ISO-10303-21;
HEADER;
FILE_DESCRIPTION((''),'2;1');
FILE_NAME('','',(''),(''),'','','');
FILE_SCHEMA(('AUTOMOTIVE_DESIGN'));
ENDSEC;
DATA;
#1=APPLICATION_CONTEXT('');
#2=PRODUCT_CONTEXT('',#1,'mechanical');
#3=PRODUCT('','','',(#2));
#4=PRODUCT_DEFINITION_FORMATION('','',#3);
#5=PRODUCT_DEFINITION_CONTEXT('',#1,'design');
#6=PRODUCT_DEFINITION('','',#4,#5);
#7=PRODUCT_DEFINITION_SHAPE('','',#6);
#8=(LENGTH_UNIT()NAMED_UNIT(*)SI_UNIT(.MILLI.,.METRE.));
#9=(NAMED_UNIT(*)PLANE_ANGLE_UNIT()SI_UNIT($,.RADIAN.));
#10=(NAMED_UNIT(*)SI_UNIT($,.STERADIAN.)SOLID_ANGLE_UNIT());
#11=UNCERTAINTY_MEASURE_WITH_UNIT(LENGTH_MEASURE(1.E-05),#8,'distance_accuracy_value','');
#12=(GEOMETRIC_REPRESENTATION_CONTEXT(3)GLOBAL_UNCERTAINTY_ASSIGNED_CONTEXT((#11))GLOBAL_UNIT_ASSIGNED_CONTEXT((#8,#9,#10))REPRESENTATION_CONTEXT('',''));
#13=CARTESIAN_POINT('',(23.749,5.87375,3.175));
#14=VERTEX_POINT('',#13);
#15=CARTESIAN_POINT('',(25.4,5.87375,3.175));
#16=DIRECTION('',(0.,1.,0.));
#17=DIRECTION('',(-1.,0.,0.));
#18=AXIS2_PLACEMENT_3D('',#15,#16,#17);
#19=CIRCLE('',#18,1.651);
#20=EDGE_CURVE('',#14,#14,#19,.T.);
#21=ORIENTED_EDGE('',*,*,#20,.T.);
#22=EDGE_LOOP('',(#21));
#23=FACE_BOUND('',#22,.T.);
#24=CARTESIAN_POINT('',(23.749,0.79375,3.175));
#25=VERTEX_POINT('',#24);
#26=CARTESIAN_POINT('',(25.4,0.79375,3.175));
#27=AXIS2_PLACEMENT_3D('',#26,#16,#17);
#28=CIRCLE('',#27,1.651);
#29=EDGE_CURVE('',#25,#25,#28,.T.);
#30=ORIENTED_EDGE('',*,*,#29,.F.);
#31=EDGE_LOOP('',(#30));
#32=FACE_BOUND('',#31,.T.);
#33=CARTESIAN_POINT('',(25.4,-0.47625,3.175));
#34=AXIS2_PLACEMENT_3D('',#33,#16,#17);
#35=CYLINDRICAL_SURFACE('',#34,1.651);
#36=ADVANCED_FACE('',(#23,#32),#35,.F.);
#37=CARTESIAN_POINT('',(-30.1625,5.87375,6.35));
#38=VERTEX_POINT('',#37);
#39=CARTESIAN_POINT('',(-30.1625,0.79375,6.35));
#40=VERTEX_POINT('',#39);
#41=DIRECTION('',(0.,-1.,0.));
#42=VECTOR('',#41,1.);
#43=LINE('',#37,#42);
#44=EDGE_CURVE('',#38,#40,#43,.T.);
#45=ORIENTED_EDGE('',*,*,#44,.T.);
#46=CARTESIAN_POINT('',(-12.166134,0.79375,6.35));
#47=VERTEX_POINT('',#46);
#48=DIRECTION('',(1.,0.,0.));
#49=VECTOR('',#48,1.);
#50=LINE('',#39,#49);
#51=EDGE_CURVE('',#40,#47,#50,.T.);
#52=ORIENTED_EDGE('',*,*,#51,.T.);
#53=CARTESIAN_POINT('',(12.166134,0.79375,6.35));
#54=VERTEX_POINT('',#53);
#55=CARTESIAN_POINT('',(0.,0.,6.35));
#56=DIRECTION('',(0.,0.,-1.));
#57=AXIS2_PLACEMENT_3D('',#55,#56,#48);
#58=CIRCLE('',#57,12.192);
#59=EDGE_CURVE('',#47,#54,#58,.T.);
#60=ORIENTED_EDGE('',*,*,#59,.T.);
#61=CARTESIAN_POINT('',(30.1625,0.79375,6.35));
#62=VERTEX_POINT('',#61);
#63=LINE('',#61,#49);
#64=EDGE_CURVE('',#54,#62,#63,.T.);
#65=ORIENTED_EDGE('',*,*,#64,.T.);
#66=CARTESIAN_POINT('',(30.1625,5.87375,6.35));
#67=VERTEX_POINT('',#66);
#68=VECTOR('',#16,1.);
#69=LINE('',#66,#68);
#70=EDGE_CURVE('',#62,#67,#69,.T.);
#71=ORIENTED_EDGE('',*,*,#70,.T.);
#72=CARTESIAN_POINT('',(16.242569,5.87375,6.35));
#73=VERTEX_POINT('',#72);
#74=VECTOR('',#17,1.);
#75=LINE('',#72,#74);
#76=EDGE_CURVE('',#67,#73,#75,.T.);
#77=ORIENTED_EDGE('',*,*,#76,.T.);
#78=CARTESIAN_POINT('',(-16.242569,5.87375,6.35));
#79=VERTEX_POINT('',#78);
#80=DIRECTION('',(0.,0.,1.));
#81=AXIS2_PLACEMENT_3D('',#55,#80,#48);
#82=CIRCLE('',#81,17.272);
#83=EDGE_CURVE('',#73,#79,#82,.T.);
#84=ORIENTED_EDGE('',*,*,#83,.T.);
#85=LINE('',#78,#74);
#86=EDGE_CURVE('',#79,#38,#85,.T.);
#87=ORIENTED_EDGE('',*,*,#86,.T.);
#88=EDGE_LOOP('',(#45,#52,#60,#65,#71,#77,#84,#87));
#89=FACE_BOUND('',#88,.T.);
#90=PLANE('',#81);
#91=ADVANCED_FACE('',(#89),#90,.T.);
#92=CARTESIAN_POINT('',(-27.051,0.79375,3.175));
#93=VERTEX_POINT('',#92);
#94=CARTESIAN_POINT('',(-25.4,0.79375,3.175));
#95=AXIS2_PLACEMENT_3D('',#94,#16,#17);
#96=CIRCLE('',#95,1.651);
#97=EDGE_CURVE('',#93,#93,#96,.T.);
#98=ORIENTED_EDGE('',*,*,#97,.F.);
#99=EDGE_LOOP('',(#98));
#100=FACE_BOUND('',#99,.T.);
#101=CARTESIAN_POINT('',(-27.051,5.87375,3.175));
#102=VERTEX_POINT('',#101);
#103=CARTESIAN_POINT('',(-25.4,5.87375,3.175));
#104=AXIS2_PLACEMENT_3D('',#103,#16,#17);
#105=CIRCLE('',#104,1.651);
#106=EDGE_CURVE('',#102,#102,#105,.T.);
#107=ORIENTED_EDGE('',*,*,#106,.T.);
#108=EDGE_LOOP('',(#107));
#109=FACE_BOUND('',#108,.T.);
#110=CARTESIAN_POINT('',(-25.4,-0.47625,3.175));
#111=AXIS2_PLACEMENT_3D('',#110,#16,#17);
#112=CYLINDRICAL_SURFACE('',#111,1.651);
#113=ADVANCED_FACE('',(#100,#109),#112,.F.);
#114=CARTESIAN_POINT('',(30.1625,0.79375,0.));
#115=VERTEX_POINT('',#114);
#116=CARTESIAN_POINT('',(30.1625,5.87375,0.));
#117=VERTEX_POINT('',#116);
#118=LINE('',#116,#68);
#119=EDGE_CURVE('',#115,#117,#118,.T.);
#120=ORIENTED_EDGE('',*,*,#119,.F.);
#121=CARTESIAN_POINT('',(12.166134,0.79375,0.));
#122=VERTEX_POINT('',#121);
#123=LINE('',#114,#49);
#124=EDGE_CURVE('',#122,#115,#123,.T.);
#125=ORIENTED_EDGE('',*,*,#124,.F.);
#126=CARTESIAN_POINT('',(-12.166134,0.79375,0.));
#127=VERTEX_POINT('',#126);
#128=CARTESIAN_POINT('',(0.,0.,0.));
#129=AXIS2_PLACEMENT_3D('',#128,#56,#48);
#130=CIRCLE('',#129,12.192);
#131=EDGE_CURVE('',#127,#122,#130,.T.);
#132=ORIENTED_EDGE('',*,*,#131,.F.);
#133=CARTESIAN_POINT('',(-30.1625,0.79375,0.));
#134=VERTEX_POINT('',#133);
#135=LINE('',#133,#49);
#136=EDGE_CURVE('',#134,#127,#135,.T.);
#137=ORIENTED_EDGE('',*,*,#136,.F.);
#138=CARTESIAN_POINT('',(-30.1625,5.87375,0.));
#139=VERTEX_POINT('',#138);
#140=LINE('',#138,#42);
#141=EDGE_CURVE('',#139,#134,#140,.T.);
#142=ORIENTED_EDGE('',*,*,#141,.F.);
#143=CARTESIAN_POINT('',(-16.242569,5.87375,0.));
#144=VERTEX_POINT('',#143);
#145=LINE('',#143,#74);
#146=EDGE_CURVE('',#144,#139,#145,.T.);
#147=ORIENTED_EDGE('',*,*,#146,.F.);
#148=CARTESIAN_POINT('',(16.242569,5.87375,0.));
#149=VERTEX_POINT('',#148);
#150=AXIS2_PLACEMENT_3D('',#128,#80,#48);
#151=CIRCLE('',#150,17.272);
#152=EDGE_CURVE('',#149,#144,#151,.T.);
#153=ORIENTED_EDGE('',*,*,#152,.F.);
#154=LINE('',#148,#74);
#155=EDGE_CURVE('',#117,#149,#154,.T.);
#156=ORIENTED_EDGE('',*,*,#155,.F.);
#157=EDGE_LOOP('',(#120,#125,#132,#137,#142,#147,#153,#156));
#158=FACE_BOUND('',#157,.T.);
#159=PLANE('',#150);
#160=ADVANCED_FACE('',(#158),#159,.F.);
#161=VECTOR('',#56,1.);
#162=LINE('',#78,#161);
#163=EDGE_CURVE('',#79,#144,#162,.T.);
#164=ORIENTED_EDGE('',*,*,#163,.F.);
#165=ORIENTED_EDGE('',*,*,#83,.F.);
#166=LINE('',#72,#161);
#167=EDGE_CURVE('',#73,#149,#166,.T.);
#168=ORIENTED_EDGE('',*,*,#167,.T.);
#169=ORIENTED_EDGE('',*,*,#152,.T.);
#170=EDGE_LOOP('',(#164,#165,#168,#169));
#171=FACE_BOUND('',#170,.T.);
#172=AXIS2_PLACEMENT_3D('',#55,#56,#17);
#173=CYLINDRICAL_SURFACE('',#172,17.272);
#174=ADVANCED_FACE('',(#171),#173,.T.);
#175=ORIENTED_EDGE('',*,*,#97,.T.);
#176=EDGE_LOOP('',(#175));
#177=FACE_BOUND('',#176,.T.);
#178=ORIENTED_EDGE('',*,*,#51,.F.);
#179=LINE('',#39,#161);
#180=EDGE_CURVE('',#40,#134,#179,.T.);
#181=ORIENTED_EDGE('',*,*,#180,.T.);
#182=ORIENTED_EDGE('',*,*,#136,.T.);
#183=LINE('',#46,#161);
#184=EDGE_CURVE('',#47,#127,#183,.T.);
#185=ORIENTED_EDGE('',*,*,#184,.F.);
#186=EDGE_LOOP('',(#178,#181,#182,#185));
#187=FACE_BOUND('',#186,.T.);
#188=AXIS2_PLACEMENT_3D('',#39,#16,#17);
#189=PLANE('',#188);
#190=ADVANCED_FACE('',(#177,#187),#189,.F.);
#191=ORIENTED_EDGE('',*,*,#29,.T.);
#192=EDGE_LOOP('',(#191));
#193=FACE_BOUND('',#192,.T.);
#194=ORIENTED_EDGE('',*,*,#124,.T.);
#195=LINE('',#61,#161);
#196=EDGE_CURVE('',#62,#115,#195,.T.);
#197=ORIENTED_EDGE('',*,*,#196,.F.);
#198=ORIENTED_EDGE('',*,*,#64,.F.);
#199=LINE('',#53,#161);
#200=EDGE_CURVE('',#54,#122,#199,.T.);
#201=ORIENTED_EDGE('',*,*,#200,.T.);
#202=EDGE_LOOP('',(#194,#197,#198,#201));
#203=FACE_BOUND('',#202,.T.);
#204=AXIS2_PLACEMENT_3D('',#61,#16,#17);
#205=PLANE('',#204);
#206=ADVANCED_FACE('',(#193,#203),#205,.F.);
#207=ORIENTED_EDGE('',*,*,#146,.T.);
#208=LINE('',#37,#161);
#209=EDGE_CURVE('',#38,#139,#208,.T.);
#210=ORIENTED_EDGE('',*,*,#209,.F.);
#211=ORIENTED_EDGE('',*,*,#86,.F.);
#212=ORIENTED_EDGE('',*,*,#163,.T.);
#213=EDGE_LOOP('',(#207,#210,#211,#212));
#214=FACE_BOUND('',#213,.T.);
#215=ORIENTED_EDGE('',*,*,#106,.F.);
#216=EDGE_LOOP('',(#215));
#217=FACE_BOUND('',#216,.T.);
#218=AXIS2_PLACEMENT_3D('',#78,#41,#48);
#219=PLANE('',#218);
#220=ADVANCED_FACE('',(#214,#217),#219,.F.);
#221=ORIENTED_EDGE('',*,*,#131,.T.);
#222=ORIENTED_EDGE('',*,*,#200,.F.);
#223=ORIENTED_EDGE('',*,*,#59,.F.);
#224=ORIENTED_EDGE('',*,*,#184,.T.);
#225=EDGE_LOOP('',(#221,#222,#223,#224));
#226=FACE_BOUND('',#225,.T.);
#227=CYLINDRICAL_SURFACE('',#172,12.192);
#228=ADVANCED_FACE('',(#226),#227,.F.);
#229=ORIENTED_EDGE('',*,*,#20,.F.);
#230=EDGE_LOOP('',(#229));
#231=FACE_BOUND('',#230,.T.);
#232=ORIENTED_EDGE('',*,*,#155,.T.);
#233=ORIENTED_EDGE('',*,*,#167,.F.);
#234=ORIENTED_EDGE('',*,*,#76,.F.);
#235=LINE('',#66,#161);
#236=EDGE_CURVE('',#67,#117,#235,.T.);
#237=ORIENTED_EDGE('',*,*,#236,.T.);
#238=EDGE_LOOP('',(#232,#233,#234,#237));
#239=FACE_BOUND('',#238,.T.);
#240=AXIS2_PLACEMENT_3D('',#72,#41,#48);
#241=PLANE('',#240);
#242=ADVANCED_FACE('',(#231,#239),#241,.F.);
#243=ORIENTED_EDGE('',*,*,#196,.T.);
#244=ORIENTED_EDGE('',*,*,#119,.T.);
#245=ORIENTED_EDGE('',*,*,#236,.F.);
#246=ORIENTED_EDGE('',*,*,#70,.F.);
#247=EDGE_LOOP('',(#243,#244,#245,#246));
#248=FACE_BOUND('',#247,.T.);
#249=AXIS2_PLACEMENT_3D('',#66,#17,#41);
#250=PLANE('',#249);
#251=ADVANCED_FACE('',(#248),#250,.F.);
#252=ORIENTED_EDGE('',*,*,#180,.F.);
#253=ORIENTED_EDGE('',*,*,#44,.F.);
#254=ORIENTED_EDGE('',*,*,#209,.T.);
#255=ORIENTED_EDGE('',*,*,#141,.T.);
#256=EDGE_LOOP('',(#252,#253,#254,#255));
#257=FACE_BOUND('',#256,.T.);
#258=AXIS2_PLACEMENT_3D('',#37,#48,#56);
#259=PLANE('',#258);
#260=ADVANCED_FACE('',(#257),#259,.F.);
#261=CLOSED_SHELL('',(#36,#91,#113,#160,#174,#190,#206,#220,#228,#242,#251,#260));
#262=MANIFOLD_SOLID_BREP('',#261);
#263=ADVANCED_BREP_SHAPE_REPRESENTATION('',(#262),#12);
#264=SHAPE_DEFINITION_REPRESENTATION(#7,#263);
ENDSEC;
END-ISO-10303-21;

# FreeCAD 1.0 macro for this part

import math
import FreeCAD as App
import Part
import Sketcher
from FreeCAD import Vector
Q = App.Units.Quantity

doc = App.newDocument("Part")
body = doc.addObject("PartDesign::Body", "Body")

sketch1 = body.newObject("Sketcher::SketchObject", "Sketch")
sketch1.AttachmentSupport = (doc.getObject("XY_Plane"), [""])
sketch1.MapMode = "FlatFace"
sketch1.addGeometry(Part.LineSegment(Vector(-16.242569, 5.87375, 0), Vector(-30.1625, 5.87375, 0)), False)
sketch1.addGeometry(Part.LineSegment(Vector(-30.1625, 5.87375, 0), Vector(-30.1625, 0.79375, 0)), False)
sketch1.addGeometry(Part.LineSegment(Vector(-30.1625, 0.79375, 0), Vector(-12.166134, 0.79375, 0)), False)
sketch1.addGeometry(Part.ArcOfCircle(Part.Circle(Vector(0, 0, 0), Vector(0, 0, 1), 12.192), math.radians(3.732834), math.radians(176.267166)), False)
sketch1.addGeometry(Part.LineSegment(Vector(12.166134, 0.79375, 0), Vector(30.1625, 0.79375, 0)), False)
sketch1.addGeometry(Part.LineSegment(Vector(30.1625, 0.79375, 0), Vector(30.1625, 5.87375, 0)), False)
sketch1.addGeometry(Part.LineSegment(Vector(30.1625, 5.87375, 0), Vector(16.242569, 5.87375, 0)), False)
sketch1.addGeometry(Part.ArcOfCircle(Part.Circle(Vector(0, 0, 0), Vector(0, 0, 1), 17.272), math.radians(19.881354), math.radians(160.118646)), False)
sketch1.addConstraint(Sketcher.Constraint("Coincident", 0, 2, 1, 1))
sketch1.addConstraint(Sketcher.Constraint("Coincident", 1, 2, 2, 1))
sketch1.addConstraint(Sketcher.Constraint("Coincident", 2, 2, 3, 2))
sketch1.addConstraint(Sketcher.Constraint("Coincident", 3, 1, 4, 1))
sketch1.addConstraint(Sketcher.Constraint("Coincident", 4, 2, 5, 1))
sketch1.addConstraint(Sketcher.Constraint("Coincident", 5, 2, 6, 1))
sketch1.addConstraint(Sketcher.Constraint("Coincident", 6, 2, 7, 1))
sketch1.addConstraint(Sketcher.Constraint("Coincident", 7, 2, 0, 1))
sketch1.addConstraint(Sketcher.Constraint("Horizontal", 0))
sketch1.addConstraint(Sketcher.Constraint("Vertical", 1))
sketch1.addConstraint(Sketcher.Constraint("Horizontal", 2))
sketch1.addConstraint(Sketcher.Constraint("Horizontal", 4))
sketch1.addConstraint(Sketcher.Constraint("Vertical", 5))
sketch1.addConstraint(Sketcher.Constraint("Horizontal", 6))
sketch1.addConstraint(Sketcher.Constraint("Coincident", 3, 3, -1, 1))
sketch1.addConstraint(Sketcher.Constraint("Coincident", 7, 3, -1, 1))
sketch1.addConstraint(Sketcher.Constraint("Symmetric", 1, 2, 4, 2, -2))
sketch1.addConstraint(Sketcher.Constraint("Horizontal", 0, 2, 5, 2))
sketch1.addConstraint(Sketcher.Constraint("Radius", 3, Q("0.48 in")))
sketch1.addConstraint(Sketcher.Constraint("Radius", 7, Q("0.68 in")))
sketch1.addConstraint(Sketcher.Constraint("DistanceY", 1, 2, 1, 1, Q("0.2 in")))
sketch1.addConstraint(Sketcher.Constraint("DistanceX", 0, 2, -1, 1, Q("1.1875 in")))
sketch1.addConstraint(Sketcher.Constraint("DistanceY", -1, 1, 1, 2, Q("0.03125 in")))
pad1 = body.newObject("PartDesign::Pad", "Pad")
pad1.Profile = sketch1
pad1.Length = Q("0.25 in")

sketch2 = body.newObject("Sketcher::SketchObject", "Sketch001")
sketch2.AttachmentSupport = (doc.getObject("XZ_Plane"), [""])
sketch2.MapMode = "FlatFace"
sketch2.AttachmentOffset = App.Placement(Vector(0, 0, -5.87375), App.Rotation())
sketch2.addGeometry(Part.Circle(Vector(-25.4, 3.175, 0), Vector(0, 0, 1), 1.651), False)
sketch2.addGeometry(Part.Circle(Vector(25.4, 3.175, 0), Vector(0, 0, 1), 1.651), False)
sketch2.addConstraint(Sketcher.Constraint("Equal", 0, 1))
sketch2.addConstraint(Sketcher.Constraint("Symmetric", 0, 3, 1, 3, -2))
sketch2.addConstraint(Sketcher.Constraint("Diameter", 0, Q("0.13 in")))
sketch2.addConstraint(Sketcher.Constraint("DistanceX", 0, 3, -1, 1, Q("1 in")))
sketch2.addConstraint(Sketcher.Constraint("DistanceY", -1, 1, 0, 3, Q("0.125 in")))
pocket1 = body.newObject("PartDesign::Pocket", "Pocket")
pocket1.Profile = sketch2
pocket1.Length = Q("0.25 in")
pocket1.Reversed = True

doc.recompute()
